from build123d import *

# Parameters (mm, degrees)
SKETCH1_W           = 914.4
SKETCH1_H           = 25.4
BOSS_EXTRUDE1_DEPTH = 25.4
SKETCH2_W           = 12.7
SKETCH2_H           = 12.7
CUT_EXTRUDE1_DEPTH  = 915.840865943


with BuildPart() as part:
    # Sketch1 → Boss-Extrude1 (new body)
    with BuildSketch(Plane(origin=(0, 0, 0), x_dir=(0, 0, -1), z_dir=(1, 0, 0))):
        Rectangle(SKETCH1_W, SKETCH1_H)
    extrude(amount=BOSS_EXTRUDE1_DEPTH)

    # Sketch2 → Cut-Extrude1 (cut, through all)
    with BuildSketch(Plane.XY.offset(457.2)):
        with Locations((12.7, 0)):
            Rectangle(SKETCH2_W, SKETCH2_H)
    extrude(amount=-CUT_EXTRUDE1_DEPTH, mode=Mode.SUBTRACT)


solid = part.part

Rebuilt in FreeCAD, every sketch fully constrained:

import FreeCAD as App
import Part
import Sketcher
Q = App.Units.Quantity


def add_polygon(sketch, points):
    """Adds a closed chain of lines whose ends are joined by coincident constraints."""
    first, n = sketch.GeometryCount, len(points)
    for a, b in zip(points, points[1:] + points[:1]):
        sketch.addGeometry(Part.LineSegment(App.Vector(*a, 0), App.Vector(*b, 0)), False)
    for i in range(n):
        sketch.addConstraint(Sketcher.Constraint("Coincident", first + i, 2, first + (i + 1) % n, 1))

doc = App.newDocument("Part")
body = doc.addObject("PartDesign::Body", "Body")

# Sketch on YZ plane
sketch1 = body.newObject("Sketcher::SketchObject", "Sketch")
sketch1.AttachmentSupport = (doc.getObject("YZ_Plane"), [""])
sketch1.MapMode = "FlatFace"
add_polygon(sketch1, [(12.7, 457.2), (-12.7, 457.2), (-12.7, -457.2), (12.7, -457.2)])  # lines 0-3
sketch1.addConstraint([
    Sketcher.Constraint("Horizontal", 0),
    Sketcher.Constraint("Vertical", 1),
    Sketcher.Constraint("Horizontal", 2),
    Sketcher.Constraint("Vertical", 3),
    Sketcher.Constraint("Symmetric", 0, 2, 2, 2, -1, 1),
    Sketcher.Constraint("DistanceX", 0, 2, 0, 1, Q("1 in")),
    Sketcher.Constraint("DistanceY", 1, 2, 1, 1, Q("36 in")),
])
pad1 = body.newObject("PartDesign::Pad", "Pad")
pad1.Profile = sketch1
pad1.Length = Q("1 in")

# Sketch on XY plane
sketch2 = body.newObject("Sketcher::SketchObject", "Sketch001")
sketch2.AttachmentSupport = (doc.getObject("XY_Plane"), [""])
sketch2.MapMode = "FlatFace"
sketch2.AttachmentOffset = App.Placement(App.Vector(0, 0, 18 * 25.4), App.Rotation())
add_polygon(sketch2, [(6.35, 6.35), (6.35, -6.35), (19.05, -6.35), (19.05, 6.35)])  # lines 0-3
sketch2.addConstraint([
    Sketcher.Constraint("Vertical", 0),
    Sketcher.Constraint("Horizontal", 1),
    Sketcher.Constraint("Vertical", 2),
    Sketcher.Constraint("Horizontal", 3),
    Sketcher.Constraint("Equal", 3, 0),
    Sketcher.Constraint("DistanceX", 1, 1, 1, 2, Q("0.5 in")),
    Sketcher.Constraint("DistanceX", -1, 1, 0, 2, Q("0.25 in")),
    Sketcher.Constraint("DistanceY", 0, 2, -1, 1, Q("0.25 in")),
])
pocket1 = body.newObject("PartDesign::Pocket", "Pocket")
pocket1.Profile = sketch2
pocket1.Type = "ThroughAll"

doc.recompute()
